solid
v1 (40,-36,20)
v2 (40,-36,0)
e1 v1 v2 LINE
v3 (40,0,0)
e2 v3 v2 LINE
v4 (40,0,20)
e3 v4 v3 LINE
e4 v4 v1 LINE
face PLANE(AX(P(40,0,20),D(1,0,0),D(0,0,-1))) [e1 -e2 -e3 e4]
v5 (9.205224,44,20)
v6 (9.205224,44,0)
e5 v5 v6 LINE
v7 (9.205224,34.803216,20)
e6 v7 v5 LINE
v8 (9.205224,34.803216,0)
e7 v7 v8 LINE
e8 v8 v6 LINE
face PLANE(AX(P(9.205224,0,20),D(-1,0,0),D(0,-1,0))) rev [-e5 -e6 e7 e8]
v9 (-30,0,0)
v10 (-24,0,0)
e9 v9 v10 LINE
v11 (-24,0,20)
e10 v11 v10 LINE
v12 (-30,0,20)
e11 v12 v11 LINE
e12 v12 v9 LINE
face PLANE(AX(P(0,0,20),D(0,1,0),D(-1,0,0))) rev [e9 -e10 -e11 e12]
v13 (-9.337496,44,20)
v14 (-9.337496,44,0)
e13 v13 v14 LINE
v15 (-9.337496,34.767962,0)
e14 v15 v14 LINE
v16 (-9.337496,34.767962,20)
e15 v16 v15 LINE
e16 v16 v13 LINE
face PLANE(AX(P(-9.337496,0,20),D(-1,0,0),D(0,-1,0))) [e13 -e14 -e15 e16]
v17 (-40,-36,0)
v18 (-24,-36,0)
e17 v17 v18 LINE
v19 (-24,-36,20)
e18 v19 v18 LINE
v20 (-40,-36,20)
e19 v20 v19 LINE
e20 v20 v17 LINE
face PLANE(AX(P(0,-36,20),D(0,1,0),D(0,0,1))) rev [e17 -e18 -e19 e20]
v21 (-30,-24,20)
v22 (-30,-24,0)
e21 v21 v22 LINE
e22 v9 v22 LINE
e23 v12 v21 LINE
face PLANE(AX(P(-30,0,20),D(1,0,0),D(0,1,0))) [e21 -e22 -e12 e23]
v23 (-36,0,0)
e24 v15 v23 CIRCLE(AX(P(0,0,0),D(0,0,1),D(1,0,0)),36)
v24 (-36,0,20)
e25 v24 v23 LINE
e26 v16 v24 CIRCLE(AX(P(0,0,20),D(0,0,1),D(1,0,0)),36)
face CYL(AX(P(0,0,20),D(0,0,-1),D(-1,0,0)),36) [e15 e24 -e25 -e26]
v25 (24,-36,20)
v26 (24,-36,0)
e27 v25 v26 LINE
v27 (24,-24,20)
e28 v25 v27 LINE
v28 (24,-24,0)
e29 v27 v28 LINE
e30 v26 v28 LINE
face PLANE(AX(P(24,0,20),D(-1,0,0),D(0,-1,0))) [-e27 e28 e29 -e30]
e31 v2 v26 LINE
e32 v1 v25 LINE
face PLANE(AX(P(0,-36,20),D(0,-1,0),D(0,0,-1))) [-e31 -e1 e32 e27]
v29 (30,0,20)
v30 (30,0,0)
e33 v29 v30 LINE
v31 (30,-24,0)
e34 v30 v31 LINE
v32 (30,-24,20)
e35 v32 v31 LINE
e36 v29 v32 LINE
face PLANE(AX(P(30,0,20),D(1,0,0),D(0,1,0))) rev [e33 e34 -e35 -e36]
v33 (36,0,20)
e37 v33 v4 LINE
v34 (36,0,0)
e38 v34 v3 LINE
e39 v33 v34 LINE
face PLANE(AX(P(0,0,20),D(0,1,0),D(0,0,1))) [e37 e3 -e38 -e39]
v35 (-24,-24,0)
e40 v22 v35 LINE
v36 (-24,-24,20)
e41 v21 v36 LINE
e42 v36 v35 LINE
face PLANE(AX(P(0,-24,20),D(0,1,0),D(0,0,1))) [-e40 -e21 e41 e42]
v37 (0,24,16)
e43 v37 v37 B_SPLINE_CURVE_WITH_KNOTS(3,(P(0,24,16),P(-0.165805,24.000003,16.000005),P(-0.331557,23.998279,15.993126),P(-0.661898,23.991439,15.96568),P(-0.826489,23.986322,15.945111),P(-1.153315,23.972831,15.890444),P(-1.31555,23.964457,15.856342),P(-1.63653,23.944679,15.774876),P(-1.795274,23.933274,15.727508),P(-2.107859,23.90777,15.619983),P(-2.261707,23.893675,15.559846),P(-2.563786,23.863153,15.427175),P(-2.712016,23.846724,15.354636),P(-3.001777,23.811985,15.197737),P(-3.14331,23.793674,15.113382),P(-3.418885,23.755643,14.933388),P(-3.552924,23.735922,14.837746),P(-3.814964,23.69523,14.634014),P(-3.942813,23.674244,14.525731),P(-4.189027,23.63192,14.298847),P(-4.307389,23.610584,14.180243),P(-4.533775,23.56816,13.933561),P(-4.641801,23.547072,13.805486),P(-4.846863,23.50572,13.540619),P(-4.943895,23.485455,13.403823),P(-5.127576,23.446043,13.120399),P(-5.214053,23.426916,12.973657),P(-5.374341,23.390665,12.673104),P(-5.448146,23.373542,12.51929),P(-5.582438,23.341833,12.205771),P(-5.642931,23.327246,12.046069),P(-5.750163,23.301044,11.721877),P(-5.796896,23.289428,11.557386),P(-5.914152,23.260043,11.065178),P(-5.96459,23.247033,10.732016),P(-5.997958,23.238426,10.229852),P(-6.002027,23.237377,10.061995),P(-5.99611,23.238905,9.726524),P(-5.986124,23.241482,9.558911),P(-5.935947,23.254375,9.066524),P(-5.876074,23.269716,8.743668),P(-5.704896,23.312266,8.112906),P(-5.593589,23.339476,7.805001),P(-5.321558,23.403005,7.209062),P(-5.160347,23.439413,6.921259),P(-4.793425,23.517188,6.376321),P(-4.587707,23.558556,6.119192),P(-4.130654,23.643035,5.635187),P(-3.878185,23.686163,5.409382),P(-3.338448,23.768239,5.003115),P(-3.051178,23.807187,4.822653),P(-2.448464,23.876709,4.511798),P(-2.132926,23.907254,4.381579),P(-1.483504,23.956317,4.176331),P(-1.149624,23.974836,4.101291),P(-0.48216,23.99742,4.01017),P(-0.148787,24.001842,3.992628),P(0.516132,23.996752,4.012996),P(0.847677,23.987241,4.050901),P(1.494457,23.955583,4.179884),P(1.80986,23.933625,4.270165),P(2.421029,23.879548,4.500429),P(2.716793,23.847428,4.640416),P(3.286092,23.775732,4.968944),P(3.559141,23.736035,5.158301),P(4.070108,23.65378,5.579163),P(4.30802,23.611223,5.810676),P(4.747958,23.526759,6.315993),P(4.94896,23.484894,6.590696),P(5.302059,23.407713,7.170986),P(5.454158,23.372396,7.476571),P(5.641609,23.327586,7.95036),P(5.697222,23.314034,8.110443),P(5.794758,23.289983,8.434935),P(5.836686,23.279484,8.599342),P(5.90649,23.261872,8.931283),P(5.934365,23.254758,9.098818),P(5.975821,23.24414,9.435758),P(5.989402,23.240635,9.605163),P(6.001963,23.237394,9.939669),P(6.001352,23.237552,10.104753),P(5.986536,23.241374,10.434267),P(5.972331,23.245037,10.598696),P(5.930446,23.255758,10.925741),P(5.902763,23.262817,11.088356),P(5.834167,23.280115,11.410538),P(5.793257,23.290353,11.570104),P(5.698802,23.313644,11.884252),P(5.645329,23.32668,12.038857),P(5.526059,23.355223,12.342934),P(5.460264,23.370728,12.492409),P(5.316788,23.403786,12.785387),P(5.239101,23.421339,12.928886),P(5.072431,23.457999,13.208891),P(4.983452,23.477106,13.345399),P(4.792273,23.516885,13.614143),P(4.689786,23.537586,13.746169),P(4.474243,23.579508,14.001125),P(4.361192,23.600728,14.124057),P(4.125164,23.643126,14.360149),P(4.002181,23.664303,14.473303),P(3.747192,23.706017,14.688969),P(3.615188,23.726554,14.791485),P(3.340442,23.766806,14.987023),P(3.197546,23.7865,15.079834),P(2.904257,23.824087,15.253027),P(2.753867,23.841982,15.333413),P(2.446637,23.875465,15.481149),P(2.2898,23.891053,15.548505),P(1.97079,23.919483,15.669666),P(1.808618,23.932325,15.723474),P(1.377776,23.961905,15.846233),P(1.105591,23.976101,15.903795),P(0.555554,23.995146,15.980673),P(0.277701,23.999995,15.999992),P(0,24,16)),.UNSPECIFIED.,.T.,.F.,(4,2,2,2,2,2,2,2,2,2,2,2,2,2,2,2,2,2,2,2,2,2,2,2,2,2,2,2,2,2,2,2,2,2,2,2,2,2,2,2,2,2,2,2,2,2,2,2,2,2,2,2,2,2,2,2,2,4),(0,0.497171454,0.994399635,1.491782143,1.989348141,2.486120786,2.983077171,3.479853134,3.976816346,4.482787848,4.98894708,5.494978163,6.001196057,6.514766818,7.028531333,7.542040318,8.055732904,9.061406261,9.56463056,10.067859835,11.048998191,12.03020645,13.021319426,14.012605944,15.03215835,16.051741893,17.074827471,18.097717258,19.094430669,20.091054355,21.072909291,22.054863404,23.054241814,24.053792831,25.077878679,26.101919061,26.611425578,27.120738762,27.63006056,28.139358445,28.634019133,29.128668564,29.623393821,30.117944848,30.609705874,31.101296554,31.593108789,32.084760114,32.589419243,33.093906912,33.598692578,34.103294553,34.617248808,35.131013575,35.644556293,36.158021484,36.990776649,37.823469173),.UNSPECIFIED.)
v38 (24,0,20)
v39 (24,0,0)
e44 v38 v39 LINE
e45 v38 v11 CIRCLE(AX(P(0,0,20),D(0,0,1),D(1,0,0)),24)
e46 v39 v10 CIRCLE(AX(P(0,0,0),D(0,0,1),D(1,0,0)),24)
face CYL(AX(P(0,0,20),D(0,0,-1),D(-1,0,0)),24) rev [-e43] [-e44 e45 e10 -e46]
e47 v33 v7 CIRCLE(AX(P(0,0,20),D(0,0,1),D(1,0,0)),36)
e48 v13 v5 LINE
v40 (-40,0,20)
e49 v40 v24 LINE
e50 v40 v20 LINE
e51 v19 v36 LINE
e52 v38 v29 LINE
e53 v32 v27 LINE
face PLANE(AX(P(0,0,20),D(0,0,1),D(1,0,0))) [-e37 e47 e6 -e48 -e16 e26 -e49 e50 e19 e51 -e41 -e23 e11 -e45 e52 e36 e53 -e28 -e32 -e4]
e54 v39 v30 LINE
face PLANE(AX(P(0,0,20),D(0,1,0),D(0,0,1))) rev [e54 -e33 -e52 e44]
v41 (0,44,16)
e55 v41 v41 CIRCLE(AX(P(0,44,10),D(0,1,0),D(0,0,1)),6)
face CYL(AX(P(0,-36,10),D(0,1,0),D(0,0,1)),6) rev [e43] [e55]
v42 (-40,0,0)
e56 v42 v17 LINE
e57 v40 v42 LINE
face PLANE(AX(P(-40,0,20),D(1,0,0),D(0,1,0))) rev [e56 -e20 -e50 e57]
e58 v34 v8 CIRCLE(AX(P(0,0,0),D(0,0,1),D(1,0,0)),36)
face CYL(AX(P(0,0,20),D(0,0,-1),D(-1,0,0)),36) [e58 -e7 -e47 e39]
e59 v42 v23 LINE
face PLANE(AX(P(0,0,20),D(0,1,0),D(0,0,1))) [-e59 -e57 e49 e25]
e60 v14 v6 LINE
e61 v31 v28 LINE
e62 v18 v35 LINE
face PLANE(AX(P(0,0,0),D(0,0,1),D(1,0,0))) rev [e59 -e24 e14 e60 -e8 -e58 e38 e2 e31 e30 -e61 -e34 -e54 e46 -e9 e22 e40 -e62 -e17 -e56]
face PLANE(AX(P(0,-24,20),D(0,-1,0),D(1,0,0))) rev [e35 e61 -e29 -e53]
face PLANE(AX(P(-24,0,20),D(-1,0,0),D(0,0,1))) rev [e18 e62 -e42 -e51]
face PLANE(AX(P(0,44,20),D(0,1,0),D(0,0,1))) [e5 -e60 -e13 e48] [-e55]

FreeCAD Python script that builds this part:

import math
import FreeCAD as App
import Part
import Sketcher

V = App.Vector
Q = App.Units.Quantity

doc = App.newDocument("Part")
body = doc.addObject("PartDesign::Body", "Body")

# Sketch on XY plane
sketch1 = doc.addObject("Sketcher::SketchObject", "Sketch")
body.addObject(sketch1)
sketch1.AttachmentSupport = (doc.XY_Plane, [""])
sketch1.MapMode = "FlatFace"
sketch1.addGeometry([
    Part.LineSegment(V(-30, -24, 0), V(-30, 0, 0)),  # 0
    Part.LineSegment(V(-30, 0, 0), V(-24, 0, 0)),  # 1
    Part.ArcOfCircle(Part.Circle(V(0, 0, 0), V(0, 0, 1), 24), math.radians(0), math.radians(180)),  # 2
    Part.LineSegment(V(24, 0, 0), V(30, 0, 0)),  # 3
    Part.LineSegment(V(30, 0, 0), V(30, -24, 0)),  # 4
    Part.LineSegment(V(30, -24, 0), V(24, -24, 0)),  # 5
    Part.LineSegment(V(24, -24, 0), V(24, -36, 0)),  # 6
    Part.LineSegment(V(24, -36, 0), V(40, -36, 0)),  # 7
    Part.LineSegment(V(40, -36, 0), V(40, 0, 0)),  # 8
    Part.LineSegment(V(40, 0, 0), V(36, 0, 0)),  # 9
    Part.ArcOfCircle(Part.Circle(V(0, 0, 0), V(0, 0, 1), 36), math.radians(0), math.radians(75)),  # 10
    Part.LineSegment(V(9.2, 34.8, 0), V(9.2, 44, 0)),  # 11
    Part.LineSegment(V(9.2, 44, 0), V(-9.3, 44, 0)),  # 12
    Part.LineSegment(V(-9.3, 44, 0), V(-9.3, 34.8, 0)),  # 13
    Part.ArcOfCircle(Part.Circle(V(0, 0, 0), V(0, 0, 1), 36), math.radians(105), math.radians(180)),  # 14
    Part.LineSegment(V(-36, 0, 0), V(-40, 0, 0)),  # 15
    Part.LineSegment(V(-40, 0, 0), V(-40, -36, 0)),  # 16
    Part.LineSegment(V(-40, -36, 0), V(-24, -36, 0)),  # 17
    Part.LineSegment(V(-24, -36, 0), V(-24, -24, 0)),  # 18
    Part.LineSegment(V(-24, -24, 0), V(-30, -24, 0)),  # 19
], False)
sketch1.addConstraint([
    Sketcher.Constraint("Coincident", 0, 2, 1, 1),
    Sketcher.Constraint("Coincident", 1, 2, 2, 2),
    Sketcher.Constraint("Coincident", 2, 1, 3, 1),
    Sketcher.Constraint("Coincident", 3, 2, 4, 1),
    Sketcher.Constraint("Coincident", 4, 2, 5, 1),
    Sketcher.Constraint("Coincident", 5, 2, 6, 1),
    Sketcher.Constraint("Coincident", 6, 2, 7, 1),
    Sketcher.Constraint("Coincident", 7, 2, 8, 1),
    Sketcher.Constraint("Coincident", 8, 2, 9, 1),
    Sketcher.Constraint("Coincident", 9, 2, 10, 1),
    Sketcher.Constraint("Coincident", 10, 2, 11, 1),
    Sketcher.Constraint("Coincident", 11, 2, 12, 1),
    Sketcher.Constraint("Coincident", 12, 2, 13, 1),
    Sketcher.Constraint("Coincident", 13, 2, 14, 1),
    Sketcher.Constraint("Coincident", 14, 2, 15, 1),
    Sketcher.Constraint("Coincident", 15, 2, 16, 1),
    Sketcher.Constraint("Coincident", 16, 2, 17, 1),
    Sketcher.Constraint("Coincident", 17, 2, 18, 1),
    Sketcher.Constraint("Coincident", 18, 2, 19, 1),
    Sketcher.Constraint("Coincident", 19, 2, 0, 1),
    Sketcher.Constraint("Vertical", 0),
    Sketcher.Constraint("Horizontal", 1),
    Sketcher.Constraint("Horizontal", 3),
    Sketcher.Constraint("Vertical", 4),
    Sketcher.Constraint("Horizontal", 5),
    Sketcher.Constraint("Vertical", 6),
    Sketcher.Constraint("Horizontal", 7),
    Sketcher.Constraint("Vertical", 8),
    Sketcher.Constraint("Horizontal", 9),
    Sketcher.Constraint("Vertical", 11),
    Sketcher.Constraint("Horizontal", 12),
    Sketcher.Constraint("Vertical", 13),
    Sketcher.Constraint("Horizontal", 15),
    Sketcher.Constraint("Vertical", 16),
    Sketcher.Constraint("Horizontal", 17),
    Sketcher.Constraint("Vertical", 18),
    Sketcher.Constraint("Horizontal", 19),
    Sketcher.Constraint("Coincident", 2, 3, -1, 1),
    Sketcher.Constraint("Coincident", 10, 3, -1, 1),
    Sketcher.Constraint("Coincident", 14, 3, -1, 1),
    Sketcher.Constraint("Equal", 10, 14),
    Sketcher.Constraint("Symmetric", 0, 2, 3, 2, -1, 1),
    Sketcher.Constraint("Symmetric", 8, 2, 15, 2, -1, 1),
    Sketcher.Constraint("Symmetric", 6, 2, 17, 2, -2),
    Sketcher.Constraint("PointOnObject", 0, 2, -1),
    Sketcher.Constraint("PointOnObject", 8, 2, -1),
    Sketcher.Constraint("Horizontal", 5, 2, 18, 2),
    Sketcher.Constraint("Vertical", 2, 1, 5, 2),
    Sketcher.Constraint("Radius", 2, Q("24 mm")),
    Sketcher.Constraint("Radius", 10, Q("36 mm")),
    Sketcher.Constraint("DistanceX", 1, 1, 1, 2, Q("6 mm")),
    Sketcher.Constraint("DistanceX", 7, 1, 7, 2, Q("16 mm")),
    Sketcher.Constraint("DistanceY", 0, 1, 0, 2, Q("24 mm")),
    Sketcher.Constraint("DistanceY", 6, 2, 6, 1, Q("12 mm")),
    Sketcher.Constraint("DistanceY", -1, 1, 11, 2, Q("44 mm")),
    Sketcher.Constraint("DistanceX", 12, 2, 12, 1, Q("18.542719 mm")),
    Sketcher.Constraint("DistanceY", 13, 2, 13, 1, Q("9.232038 mm")),
])
pad1 = doc.addObject("PartDesign::Pad", "Pad")
body.addObject(pad1)
pad1.Profile = sketch1
pad1.Length = 20

# Sketch on XZ plane
sketch2 = doc.addObject("Sketcher::SketchObject", "Sketch001")
body.addObject(sketch2)
sketch2.AttachmentSupport = (doc.XZ_Plane, [""])
sketch2.MapMode = "FlatFace"
sketch2.AttachmentOffset = App.Placement(V(0, 0, -44), App.Rotation())
sketch2.addGeometry(Part.Circle(V(0, 10, 0), V(0, 0, 1), 6), False)
sketch2.addConstraint([
    Sketcher.Constraint("PointOnObject", 0, 3, -2),
    Sketcher.Constraint("Diameter", 0, Q("12 mm")),
    Sketcher.Constraint("DistanceY", -1, 1, 0, 3, Q("10 mm")),
])
pocket1 = doc.addObject("PartDesign::Pocket", "Pocket")
body.addObject(pocket1)
pocket1.Profile = sketch2
pocket1.Type = "ThroughAll"
pocket1.Reversed = True

doc.recompute()
